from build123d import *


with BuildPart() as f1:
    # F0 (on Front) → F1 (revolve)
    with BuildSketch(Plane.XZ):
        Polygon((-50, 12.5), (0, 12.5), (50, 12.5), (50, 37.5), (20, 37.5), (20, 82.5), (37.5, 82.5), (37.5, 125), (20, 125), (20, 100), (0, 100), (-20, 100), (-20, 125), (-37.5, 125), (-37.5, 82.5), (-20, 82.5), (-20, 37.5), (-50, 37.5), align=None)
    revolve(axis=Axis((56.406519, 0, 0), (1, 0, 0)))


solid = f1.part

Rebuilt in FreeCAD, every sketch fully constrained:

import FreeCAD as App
import Part
import Sketcher
from FreeCAD import Vector


def add_polygon(sketch, points):
    """Adds a closed chain of lines whose ends are joined by coincident constraints."""
    first, n = sketch.GeometryCount, len(points)
    for a, b in zip(points, points[1:] + points[:1]):
        sketch.addGeometry(Part.LineSegment(App.Vector(*a, 0), App.Vector(*b, 0)), False)
    for i in range(n):
        sketch.addConstraint(Sketcher.Constraint("Coincident", first + i, 2, first + (i + 1) % n, 1))

doc = App.newDocument("Part")
body = doc.addObject("PartDesign::Body", "Body")

# Sketch on XZ plane
sketch1 = body.newObject("Sketcher::SketchObject", "Sketch")
sketch1.AttachmentSupport = (doc.getObject("XZ_Plane"), [""])
sketch1.MapMode = "FlatFace"
add_polygon(sketch1, [(-50, 12), (50, 12), (50, 38), (20, 38), (20, 82), (38, 82), (38, 125), (20, 125), (20, 100), (-20, 100), (-20, 125), (-38, 125), (-38, 82), (-20, 82), (-20, 38), (-50, 38)])  # lines 0-15
sketch1.addConstraint(Sketcher.Constraint("Horizontal", 0))
sketch1.addConstraint(Sketcher.Constraint("Vertical", 1))
sketch1.addConstraint(Sketcher.Constraint("Horizontal", 2))
sketch1.addConstraint(Sketcher.Constraint("Vertical", 3))
sketch1.addConstraint(Sketcher.Constraint("Horizontal", 4))
sketch1.addConstraint(Sketcher.Constraint("Vertical", 5))
sketch1.addConstraint(Sketcher.Constraint("Horizontal", 6))
sketch1.addConstraint(Sketcher.Constraint("Vertical", 7))
sketch1.addConstraint(Sketcher.Constraint("Horizontal", 8))
sketch1.addConstraint(Sketcher.Constraint("Vertical", 9))
sketch1.addConstraint(Sketcher.Constraint("Horizontal", 10))
sketch1.addConstraint(Sketcher.Constraint("Vertical", 11))
sketch1.addConstraint(Sketcher.Constraint("Horizontal", 12))
sketch1.addConstraint(Sketcher.Constraint("Vertical", 13))
sketch1.addConstraint(Sketcher.Constraint("Horizontal", 14))
sketch1.addConstraint(Sketcher.Constraint("Vertical", 15))
sketch1.addConstraint(Sketcher.Constraint("Symmetric", 6, 2, 9, 2, -2))
sketch1.addConstraint(Sketcher.Constraint("Symmetric", 4, 2, 11, 2, -2))
sketch1.addConstraint(Sketcher.Constraint("Symmetric", 2, 2, 13, 2, -2))
sketch1.addConstraint(Sketcher.Constraint("Vertical", 3, 2, 6, 2))
sketch1.addConstraint(Sketcher.Constraint("Equal", 2, 14))
sketch1.addConstraint(Sketcher.Constraint("Equal", 1, 7))
sketch1.addConstraint(Sketcher.Constraint("DistanceX", 0, 1, 0, 2, 100.0))
sketch1.addConstraint(Sketcher.Constraint("DistanceX", 2, 2, 2, 1, 30.0))
sketch1.addConstraint(Sketcher.Constraint("DistanceY", 1, 1, 1, 2, 25.0))
sketch1.addConstraint(Sketcher.Constraint("DistanceY", 3, 1, 3, 2, 45.0))
sketch1.addConstraint(Sketcher.Constraint("DistanceX", 4, 1, 4, 2, 17.5))
sketch1.addConstraint(Sketcher.Constraint("DistanceY", 5, 1, 5, 2, 42.5))
sketch1.addConstraint(Sketcher.Constraint("DistanceY", -1, 1, 5, 2, 125.0))
revolution = body.newObject("PartDesign::Revolution", "Revolution")
revolution.Profile = sketch1
revolution.ReferenceAxis = (sketch1, ["H_Axis"])
revolution.Angle = 360

doc.recompute()
